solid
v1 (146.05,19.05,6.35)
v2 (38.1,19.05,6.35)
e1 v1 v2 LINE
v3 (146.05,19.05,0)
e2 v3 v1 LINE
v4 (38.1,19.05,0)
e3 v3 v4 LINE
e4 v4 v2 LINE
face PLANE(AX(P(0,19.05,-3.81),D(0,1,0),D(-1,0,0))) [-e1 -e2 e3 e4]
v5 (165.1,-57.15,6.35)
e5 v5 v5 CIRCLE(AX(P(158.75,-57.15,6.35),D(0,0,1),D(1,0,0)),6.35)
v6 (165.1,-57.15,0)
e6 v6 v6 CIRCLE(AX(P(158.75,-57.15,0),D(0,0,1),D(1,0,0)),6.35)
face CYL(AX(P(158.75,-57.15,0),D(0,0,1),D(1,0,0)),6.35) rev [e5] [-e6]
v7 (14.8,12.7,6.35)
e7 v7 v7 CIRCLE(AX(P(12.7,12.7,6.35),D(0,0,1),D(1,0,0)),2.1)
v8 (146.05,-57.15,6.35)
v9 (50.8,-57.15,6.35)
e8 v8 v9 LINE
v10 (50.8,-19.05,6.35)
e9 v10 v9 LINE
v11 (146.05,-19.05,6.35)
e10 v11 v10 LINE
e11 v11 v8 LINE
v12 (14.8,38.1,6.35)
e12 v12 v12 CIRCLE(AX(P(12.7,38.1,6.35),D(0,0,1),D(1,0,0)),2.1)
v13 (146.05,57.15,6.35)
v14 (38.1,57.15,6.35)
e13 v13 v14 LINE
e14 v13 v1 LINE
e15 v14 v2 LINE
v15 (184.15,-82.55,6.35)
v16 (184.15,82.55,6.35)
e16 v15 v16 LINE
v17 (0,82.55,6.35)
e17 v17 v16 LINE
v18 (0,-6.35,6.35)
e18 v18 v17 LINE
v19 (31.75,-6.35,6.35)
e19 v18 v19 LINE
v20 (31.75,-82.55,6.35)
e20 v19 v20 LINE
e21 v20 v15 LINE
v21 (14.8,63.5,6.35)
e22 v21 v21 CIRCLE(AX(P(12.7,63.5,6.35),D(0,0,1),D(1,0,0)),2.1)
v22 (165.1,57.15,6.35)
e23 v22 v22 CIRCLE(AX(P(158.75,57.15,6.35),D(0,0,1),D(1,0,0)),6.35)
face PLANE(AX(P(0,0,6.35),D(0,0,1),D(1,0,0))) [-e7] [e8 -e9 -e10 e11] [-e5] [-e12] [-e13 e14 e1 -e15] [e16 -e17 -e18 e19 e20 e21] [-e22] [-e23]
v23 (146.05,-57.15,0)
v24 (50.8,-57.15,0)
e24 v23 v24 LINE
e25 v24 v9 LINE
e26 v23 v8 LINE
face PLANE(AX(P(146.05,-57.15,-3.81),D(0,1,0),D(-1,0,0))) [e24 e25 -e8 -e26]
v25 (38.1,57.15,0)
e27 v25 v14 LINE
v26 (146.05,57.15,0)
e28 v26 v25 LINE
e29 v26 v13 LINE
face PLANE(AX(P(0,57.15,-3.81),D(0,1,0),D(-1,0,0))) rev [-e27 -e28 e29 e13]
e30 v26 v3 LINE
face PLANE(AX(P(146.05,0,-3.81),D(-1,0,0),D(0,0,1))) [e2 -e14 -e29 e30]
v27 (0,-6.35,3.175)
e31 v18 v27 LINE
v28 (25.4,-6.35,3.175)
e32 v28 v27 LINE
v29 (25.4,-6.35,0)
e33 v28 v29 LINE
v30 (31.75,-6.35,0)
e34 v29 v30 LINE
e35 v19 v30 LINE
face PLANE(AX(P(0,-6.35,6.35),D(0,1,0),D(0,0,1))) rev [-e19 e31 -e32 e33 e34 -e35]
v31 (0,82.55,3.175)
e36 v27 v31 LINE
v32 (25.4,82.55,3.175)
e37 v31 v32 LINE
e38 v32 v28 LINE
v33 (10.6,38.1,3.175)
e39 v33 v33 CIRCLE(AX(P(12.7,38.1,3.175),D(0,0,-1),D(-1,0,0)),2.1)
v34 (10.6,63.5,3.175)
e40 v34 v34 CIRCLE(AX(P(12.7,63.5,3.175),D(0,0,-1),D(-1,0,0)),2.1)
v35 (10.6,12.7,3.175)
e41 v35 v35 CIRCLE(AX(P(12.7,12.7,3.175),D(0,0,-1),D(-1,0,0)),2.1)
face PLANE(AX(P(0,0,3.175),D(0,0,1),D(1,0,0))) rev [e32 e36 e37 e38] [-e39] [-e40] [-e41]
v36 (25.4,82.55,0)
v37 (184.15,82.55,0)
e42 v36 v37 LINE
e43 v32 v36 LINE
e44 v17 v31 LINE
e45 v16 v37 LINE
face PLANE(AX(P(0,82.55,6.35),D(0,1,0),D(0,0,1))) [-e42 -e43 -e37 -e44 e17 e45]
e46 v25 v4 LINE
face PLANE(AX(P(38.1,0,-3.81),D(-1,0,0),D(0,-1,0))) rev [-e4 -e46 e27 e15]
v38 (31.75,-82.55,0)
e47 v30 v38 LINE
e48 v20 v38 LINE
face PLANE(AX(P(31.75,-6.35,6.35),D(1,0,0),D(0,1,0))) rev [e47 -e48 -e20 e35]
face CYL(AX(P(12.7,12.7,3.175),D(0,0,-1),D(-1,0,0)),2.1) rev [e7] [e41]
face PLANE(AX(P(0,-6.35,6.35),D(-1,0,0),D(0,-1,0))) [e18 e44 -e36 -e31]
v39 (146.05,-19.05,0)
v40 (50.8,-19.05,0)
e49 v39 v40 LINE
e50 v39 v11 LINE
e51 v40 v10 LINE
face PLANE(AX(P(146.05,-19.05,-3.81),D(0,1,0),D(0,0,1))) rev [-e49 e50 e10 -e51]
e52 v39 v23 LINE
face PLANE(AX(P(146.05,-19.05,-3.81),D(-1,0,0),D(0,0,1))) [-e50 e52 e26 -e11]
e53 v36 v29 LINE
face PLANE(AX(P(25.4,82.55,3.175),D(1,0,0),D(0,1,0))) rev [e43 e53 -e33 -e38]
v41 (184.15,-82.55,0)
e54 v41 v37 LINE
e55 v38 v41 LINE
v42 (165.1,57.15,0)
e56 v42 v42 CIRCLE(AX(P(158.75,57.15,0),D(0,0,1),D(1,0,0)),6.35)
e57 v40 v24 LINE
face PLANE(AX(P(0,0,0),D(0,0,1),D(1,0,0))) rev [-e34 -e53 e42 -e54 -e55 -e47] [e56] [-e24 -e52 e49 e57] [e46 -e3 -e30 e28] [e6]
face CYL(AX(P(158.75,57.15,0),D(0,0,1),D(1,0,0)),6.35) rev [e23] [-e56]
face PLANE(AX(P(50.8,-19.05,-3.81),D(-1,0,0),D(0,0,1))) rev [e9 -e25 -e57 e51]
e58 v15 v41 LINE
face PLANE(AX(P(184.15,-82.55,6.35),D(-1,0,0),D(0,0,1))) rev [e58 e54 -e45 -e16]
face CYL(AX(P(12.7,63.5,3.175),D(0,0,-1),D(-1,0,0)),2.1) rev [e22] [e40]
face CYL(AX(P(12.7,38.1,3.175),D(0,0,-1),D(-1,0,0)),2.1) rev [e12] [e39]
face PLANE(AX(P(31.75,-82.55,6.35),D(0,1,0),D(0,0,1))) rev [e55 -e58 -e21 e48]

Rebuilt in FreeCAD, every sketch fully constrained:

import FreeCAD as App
import Part
import Sketcher
from FreeCAD import Vector
Q = App.Units.Quantity


def add_polygon(sketch, points):
    """Adds a closed chain of lines whose ends are joined by coincident constraints."""
    first, n = sketch.GeometryCount, len(points)
    for a, b in zip(points, points[1:] + points[:1]):
        sketch.addGeometry(Part.LineSegment(App.Vector(*a, 0), App.Vector(*b, 0)), False)
    for i in range(n):
        sketch.addConstraint(Sketcher.Constraint("Coincident", first + i, 2, first + (i + 1) % n, 1))

doc = App.newDocument("Part")
body = doc.addObject("PartDesign::Body", "Body")

sketch1 = body.newObject("Sketcher::SketchObject", "Sketch")
sketch1.AttachmentSupport = (doc.getObject("XY_Plane"), [""])
sketch1.MapMode = "FlatFace"
add_polygon(sketch1, [(184, -83), (184, 83), (0, 83), (0, -6), (32, -6), (32, -83)])
sketch1.addConstraint([
    Sketcher.Constraint("Vertical", 0),
    Sketcher.Constraint("Horizontal", 1),
    Sketcher.Constraint("Vertical", 2),
    Sketcher.Constraint("Horizontal", 3),
    Sketcher.Constraint("Vertical", 4),
    Sketcher.Constraint("Horizontal", 5),
    Sketcher.Constraint("PointOnObject", 1, 2, -2),
    Sketcher.Constraint("DistanceX", 5, 1, 5, 2, Q("6 in")),
    Sketcher.Constraint("DistanceY", 4, 2, 4, 1, Q("3 in")),
    Sketcher.Constraint("DistanceY", 0, 1, 0, 2, Q("6.5 in")),
    Sketcher.Constraint("DistanceX", 1, 2, 1, 1, Q("7.25 in")),
    Sketcher.Constraint("DistanceY", -1, 1, 0, 2, Q("3.25 in")),
])
pad1 = body.newObject("PartDesign::Pad", "Pad")
pad1.Profile = sketch1
pad1.Length = Q("0.25 in")

sketch2 = body.newObject("Sketcher::SketchObject", "Sketch001")
sketch2.AttachmentSupport = (doc.getObject("XY_Plane"), [""])
sketch2.MapMode = "FlatFace"
sketch2.AttachmentOffset = App.Placement(Vector(0, 0, 0.25 * 25.4), App.Rotation())
sketch2.addGeometry([
    Part.Circle(Vector(-159, 57, 0), Vector(0, 0, 1), 6),
    Part.Circle(Vector(-159, -57, 0), Vector(0, 0, 1), 6),
    Part.Circle(Vector(159, 57, 0), Vector(0, 0, 1), 6),
    Part.Circle(Vector(159, -57, 0), Vector(0, 0, 1), 6),
], False)
sketch2.addConstraint([
    Sketcher.Constraint("Equal", 0, 1),
    Sketcher.Constraint("Equal", 1, 2),
    Sketcher.Constraint("Equal", 2, 3),
    Sketcher.Constraint("Symmetric", 1, 3, 2, 3, -1, 1),
    Sketcher.Constraint("Symmetric", 0, 3, 3, 3, -1, 1),
    Sketcher.Constraint("Symmetric", 0, 3, 2, 3, -2),
    Sketcher.Constraint("Diameter", 0, Q("0.5 in")),
    Sketcher.Constraint("DistanceY", 1, 3, 0, 3, Q("4.5 in")),
    Sketcher.Constraint("DistanceX", 0, 3, 2, 3, Q("12.5 in")),
])
pocket1 = body.newObject("PartDesign::Pocket", "Pocket")
pocket1.Profile = sketch2
pocket1.Type = "ThroughAll"

sketch3 = body.newObject("Sketcher::SketchObject", "Sketch002")
sketch3.AttachmentSupport = (doc.getObject("XY_Plane"), [""])
sketch3.MapMode = "FlatFace"
sketch3.AttachmentOffset = App.Placement(Vector(0, 0, 0.25 * 25.4), App.Rotation())
add_polygon(sketch3, [(51, -19), (51, -57), (146, -57), (146, -19)])
add_polygon(sketch3, [(38, 57), (38, 19), (146, 19), (146, 57)])
sketch3.addConstraint([
    Sketcher.Constraint("Vertical", 0),
    Sketcher.Constraint("Horizontal", 1),
    Sketcher.Constraint("Vertical", 2),
    Sketcher.Constraint("Horizontal", 3),
    Sketcher.Constraint("Vertical", 4),
    Sketcher.Constraint("Horizontal", 5),
    Sketcher.Constraint("Vertical", 6),
    Sketcher.Constraint("Horizontal", 7),
    Sketcher.Constraint("Symmetric", 2, 2, 5, 2, -1),
    Sketcher.Constraint("Equal", 2, 4),
    Sketcher.Constraint("DistanceY", 0, 2, 0, 1, Q("1.5 in")),
    Sketcher.Constraint("DistanceX", -1, 1, 0, 2, Q("2 in")),
    Sketcher.Constraint("DistanceY", 0, 2, 4, 2, Q("3 in")),
    Sketcher.Constraint("DistanceX", 1, 1, 1, 2, Q("3.75 in")),
    Sketcher.Constraint("DistanceX", 5, 1, 5, 2, Q("4.25 in")),
])
pocket2 = body.newObject("PartDesign::Pocket", "Pocket001")
pocket2.Profile = sketch3
pocket2.Length = Q("0.4 in")

sketch4 = body.newObject("Sketcher::SketchObject", "Sketch003")
sketch4.AttachmentSupport = (doc.getObject("XY_Plane"), [""])
sketch4.MapMode = "FlatFace"
add_polygon(sketch4, [(25, 83), (25, -6), (0, -6), (0, 83)])
sketch4.addConstraint([
    Sketcher.Constraint("Vertical", 0),
    Sketcher.Constraint("Horizontal", 1),
    Sketcher.Constraint("Vertical", 2),
    Sketcher.Constraint("Horizontal", 3),
    Sketcher.Constraint("PointOnObject", 1, 2, -2),
    Sketcher.Constraint("DistanceX", 1, 2, 1, 1, Q("1 in")),
    Sketcher.Constraint("DistanceY", 0, 2, 0, 1, Q("3.5 in")),
    Sketcher.Constraint("DistanceY", 0, 2, -1, 1, Q("0.25 in")),
])
pocket3 = body.newObject("PartDesign::Pocket", "Pocket002")
pocket3.Profile = sketch4
pocket3.Length = Q("0.125 in")
pocket3.Reversed = True

sketch5 = body.newObject("Sketcher::SketchObject", "Sketch004")
sketch5.AttachmentSupport = (doc.getObject("XY_Plane"), [""])
sketch5.MapMode = "FlatFace"
sketch5.AttachmentOffset = App.Placement(Vector(0, 0, 0.125 * 25.4), App.Rotation())
sketch5.addGeometry([
    Part.Circle(Vector(12.7, 38.1, 0), Vector(0, 0, 1), 2.1),
    Part.Circle(Vector(12.7, 63.5, 0), Vector(0, 0, 1), 2.1),
    Part.Circle(Vector(12.7, 12.7, 0), Vector(0, 0, 1), 2.1),
    Part.Circle(Vector(2.7, 86.6, 0), Vector(0, 0, 1), 2.1),
], False)
sketch5.addConstraint([
    Sketcher.Constraint("Equal", 0, 1),
    Sketcher.Constraint("Equal", 1, 2),
    Sketcher.Constraint("Equal", 2, 3),
    Sketcher.Constraint("Vertical", 0, 3, 1, 3),
    Sketcher.Constraint("Vertical", 1, 3, 2, 3),
    Sketcher.Constraint("DistanceY", 0, 3, 1, 3, Q("1 in")),
    Sketcher.Constraint("DistanceY", 2, 3, 0, 3, Q("1 in")),
    Sketcher.Constraint("DistanceX", -1, 1, 0, 3, Q("0.5 in")),
    Sketcher.Constraint("DistanceY", -1, 1, 0, 3, Q("1.5 in")),
    Sketcher.Constraint("Diameter", 0, 4.2),
    Sketcher.Constraint("DistanceX", -1, 1, 3, 3, 2.670853),
    Sketcher.Constraint("DistanceY", -1, 1, 3, 3, 86.574215),
])
doc.recompute()
hole = body.newObject("PartDesign::Hole", "Hole")
hole.Profile = sketch5
hole.ThreadType = "None"
hole.Diameter = 4.2
hole.DepthType = "Dimension"
hole.Depth = Q("0.55 in")
hole.DrillPoint = "Angled"
hole.DrillPointAngle = 118
hole.Reversed = True

doc.recompute()
